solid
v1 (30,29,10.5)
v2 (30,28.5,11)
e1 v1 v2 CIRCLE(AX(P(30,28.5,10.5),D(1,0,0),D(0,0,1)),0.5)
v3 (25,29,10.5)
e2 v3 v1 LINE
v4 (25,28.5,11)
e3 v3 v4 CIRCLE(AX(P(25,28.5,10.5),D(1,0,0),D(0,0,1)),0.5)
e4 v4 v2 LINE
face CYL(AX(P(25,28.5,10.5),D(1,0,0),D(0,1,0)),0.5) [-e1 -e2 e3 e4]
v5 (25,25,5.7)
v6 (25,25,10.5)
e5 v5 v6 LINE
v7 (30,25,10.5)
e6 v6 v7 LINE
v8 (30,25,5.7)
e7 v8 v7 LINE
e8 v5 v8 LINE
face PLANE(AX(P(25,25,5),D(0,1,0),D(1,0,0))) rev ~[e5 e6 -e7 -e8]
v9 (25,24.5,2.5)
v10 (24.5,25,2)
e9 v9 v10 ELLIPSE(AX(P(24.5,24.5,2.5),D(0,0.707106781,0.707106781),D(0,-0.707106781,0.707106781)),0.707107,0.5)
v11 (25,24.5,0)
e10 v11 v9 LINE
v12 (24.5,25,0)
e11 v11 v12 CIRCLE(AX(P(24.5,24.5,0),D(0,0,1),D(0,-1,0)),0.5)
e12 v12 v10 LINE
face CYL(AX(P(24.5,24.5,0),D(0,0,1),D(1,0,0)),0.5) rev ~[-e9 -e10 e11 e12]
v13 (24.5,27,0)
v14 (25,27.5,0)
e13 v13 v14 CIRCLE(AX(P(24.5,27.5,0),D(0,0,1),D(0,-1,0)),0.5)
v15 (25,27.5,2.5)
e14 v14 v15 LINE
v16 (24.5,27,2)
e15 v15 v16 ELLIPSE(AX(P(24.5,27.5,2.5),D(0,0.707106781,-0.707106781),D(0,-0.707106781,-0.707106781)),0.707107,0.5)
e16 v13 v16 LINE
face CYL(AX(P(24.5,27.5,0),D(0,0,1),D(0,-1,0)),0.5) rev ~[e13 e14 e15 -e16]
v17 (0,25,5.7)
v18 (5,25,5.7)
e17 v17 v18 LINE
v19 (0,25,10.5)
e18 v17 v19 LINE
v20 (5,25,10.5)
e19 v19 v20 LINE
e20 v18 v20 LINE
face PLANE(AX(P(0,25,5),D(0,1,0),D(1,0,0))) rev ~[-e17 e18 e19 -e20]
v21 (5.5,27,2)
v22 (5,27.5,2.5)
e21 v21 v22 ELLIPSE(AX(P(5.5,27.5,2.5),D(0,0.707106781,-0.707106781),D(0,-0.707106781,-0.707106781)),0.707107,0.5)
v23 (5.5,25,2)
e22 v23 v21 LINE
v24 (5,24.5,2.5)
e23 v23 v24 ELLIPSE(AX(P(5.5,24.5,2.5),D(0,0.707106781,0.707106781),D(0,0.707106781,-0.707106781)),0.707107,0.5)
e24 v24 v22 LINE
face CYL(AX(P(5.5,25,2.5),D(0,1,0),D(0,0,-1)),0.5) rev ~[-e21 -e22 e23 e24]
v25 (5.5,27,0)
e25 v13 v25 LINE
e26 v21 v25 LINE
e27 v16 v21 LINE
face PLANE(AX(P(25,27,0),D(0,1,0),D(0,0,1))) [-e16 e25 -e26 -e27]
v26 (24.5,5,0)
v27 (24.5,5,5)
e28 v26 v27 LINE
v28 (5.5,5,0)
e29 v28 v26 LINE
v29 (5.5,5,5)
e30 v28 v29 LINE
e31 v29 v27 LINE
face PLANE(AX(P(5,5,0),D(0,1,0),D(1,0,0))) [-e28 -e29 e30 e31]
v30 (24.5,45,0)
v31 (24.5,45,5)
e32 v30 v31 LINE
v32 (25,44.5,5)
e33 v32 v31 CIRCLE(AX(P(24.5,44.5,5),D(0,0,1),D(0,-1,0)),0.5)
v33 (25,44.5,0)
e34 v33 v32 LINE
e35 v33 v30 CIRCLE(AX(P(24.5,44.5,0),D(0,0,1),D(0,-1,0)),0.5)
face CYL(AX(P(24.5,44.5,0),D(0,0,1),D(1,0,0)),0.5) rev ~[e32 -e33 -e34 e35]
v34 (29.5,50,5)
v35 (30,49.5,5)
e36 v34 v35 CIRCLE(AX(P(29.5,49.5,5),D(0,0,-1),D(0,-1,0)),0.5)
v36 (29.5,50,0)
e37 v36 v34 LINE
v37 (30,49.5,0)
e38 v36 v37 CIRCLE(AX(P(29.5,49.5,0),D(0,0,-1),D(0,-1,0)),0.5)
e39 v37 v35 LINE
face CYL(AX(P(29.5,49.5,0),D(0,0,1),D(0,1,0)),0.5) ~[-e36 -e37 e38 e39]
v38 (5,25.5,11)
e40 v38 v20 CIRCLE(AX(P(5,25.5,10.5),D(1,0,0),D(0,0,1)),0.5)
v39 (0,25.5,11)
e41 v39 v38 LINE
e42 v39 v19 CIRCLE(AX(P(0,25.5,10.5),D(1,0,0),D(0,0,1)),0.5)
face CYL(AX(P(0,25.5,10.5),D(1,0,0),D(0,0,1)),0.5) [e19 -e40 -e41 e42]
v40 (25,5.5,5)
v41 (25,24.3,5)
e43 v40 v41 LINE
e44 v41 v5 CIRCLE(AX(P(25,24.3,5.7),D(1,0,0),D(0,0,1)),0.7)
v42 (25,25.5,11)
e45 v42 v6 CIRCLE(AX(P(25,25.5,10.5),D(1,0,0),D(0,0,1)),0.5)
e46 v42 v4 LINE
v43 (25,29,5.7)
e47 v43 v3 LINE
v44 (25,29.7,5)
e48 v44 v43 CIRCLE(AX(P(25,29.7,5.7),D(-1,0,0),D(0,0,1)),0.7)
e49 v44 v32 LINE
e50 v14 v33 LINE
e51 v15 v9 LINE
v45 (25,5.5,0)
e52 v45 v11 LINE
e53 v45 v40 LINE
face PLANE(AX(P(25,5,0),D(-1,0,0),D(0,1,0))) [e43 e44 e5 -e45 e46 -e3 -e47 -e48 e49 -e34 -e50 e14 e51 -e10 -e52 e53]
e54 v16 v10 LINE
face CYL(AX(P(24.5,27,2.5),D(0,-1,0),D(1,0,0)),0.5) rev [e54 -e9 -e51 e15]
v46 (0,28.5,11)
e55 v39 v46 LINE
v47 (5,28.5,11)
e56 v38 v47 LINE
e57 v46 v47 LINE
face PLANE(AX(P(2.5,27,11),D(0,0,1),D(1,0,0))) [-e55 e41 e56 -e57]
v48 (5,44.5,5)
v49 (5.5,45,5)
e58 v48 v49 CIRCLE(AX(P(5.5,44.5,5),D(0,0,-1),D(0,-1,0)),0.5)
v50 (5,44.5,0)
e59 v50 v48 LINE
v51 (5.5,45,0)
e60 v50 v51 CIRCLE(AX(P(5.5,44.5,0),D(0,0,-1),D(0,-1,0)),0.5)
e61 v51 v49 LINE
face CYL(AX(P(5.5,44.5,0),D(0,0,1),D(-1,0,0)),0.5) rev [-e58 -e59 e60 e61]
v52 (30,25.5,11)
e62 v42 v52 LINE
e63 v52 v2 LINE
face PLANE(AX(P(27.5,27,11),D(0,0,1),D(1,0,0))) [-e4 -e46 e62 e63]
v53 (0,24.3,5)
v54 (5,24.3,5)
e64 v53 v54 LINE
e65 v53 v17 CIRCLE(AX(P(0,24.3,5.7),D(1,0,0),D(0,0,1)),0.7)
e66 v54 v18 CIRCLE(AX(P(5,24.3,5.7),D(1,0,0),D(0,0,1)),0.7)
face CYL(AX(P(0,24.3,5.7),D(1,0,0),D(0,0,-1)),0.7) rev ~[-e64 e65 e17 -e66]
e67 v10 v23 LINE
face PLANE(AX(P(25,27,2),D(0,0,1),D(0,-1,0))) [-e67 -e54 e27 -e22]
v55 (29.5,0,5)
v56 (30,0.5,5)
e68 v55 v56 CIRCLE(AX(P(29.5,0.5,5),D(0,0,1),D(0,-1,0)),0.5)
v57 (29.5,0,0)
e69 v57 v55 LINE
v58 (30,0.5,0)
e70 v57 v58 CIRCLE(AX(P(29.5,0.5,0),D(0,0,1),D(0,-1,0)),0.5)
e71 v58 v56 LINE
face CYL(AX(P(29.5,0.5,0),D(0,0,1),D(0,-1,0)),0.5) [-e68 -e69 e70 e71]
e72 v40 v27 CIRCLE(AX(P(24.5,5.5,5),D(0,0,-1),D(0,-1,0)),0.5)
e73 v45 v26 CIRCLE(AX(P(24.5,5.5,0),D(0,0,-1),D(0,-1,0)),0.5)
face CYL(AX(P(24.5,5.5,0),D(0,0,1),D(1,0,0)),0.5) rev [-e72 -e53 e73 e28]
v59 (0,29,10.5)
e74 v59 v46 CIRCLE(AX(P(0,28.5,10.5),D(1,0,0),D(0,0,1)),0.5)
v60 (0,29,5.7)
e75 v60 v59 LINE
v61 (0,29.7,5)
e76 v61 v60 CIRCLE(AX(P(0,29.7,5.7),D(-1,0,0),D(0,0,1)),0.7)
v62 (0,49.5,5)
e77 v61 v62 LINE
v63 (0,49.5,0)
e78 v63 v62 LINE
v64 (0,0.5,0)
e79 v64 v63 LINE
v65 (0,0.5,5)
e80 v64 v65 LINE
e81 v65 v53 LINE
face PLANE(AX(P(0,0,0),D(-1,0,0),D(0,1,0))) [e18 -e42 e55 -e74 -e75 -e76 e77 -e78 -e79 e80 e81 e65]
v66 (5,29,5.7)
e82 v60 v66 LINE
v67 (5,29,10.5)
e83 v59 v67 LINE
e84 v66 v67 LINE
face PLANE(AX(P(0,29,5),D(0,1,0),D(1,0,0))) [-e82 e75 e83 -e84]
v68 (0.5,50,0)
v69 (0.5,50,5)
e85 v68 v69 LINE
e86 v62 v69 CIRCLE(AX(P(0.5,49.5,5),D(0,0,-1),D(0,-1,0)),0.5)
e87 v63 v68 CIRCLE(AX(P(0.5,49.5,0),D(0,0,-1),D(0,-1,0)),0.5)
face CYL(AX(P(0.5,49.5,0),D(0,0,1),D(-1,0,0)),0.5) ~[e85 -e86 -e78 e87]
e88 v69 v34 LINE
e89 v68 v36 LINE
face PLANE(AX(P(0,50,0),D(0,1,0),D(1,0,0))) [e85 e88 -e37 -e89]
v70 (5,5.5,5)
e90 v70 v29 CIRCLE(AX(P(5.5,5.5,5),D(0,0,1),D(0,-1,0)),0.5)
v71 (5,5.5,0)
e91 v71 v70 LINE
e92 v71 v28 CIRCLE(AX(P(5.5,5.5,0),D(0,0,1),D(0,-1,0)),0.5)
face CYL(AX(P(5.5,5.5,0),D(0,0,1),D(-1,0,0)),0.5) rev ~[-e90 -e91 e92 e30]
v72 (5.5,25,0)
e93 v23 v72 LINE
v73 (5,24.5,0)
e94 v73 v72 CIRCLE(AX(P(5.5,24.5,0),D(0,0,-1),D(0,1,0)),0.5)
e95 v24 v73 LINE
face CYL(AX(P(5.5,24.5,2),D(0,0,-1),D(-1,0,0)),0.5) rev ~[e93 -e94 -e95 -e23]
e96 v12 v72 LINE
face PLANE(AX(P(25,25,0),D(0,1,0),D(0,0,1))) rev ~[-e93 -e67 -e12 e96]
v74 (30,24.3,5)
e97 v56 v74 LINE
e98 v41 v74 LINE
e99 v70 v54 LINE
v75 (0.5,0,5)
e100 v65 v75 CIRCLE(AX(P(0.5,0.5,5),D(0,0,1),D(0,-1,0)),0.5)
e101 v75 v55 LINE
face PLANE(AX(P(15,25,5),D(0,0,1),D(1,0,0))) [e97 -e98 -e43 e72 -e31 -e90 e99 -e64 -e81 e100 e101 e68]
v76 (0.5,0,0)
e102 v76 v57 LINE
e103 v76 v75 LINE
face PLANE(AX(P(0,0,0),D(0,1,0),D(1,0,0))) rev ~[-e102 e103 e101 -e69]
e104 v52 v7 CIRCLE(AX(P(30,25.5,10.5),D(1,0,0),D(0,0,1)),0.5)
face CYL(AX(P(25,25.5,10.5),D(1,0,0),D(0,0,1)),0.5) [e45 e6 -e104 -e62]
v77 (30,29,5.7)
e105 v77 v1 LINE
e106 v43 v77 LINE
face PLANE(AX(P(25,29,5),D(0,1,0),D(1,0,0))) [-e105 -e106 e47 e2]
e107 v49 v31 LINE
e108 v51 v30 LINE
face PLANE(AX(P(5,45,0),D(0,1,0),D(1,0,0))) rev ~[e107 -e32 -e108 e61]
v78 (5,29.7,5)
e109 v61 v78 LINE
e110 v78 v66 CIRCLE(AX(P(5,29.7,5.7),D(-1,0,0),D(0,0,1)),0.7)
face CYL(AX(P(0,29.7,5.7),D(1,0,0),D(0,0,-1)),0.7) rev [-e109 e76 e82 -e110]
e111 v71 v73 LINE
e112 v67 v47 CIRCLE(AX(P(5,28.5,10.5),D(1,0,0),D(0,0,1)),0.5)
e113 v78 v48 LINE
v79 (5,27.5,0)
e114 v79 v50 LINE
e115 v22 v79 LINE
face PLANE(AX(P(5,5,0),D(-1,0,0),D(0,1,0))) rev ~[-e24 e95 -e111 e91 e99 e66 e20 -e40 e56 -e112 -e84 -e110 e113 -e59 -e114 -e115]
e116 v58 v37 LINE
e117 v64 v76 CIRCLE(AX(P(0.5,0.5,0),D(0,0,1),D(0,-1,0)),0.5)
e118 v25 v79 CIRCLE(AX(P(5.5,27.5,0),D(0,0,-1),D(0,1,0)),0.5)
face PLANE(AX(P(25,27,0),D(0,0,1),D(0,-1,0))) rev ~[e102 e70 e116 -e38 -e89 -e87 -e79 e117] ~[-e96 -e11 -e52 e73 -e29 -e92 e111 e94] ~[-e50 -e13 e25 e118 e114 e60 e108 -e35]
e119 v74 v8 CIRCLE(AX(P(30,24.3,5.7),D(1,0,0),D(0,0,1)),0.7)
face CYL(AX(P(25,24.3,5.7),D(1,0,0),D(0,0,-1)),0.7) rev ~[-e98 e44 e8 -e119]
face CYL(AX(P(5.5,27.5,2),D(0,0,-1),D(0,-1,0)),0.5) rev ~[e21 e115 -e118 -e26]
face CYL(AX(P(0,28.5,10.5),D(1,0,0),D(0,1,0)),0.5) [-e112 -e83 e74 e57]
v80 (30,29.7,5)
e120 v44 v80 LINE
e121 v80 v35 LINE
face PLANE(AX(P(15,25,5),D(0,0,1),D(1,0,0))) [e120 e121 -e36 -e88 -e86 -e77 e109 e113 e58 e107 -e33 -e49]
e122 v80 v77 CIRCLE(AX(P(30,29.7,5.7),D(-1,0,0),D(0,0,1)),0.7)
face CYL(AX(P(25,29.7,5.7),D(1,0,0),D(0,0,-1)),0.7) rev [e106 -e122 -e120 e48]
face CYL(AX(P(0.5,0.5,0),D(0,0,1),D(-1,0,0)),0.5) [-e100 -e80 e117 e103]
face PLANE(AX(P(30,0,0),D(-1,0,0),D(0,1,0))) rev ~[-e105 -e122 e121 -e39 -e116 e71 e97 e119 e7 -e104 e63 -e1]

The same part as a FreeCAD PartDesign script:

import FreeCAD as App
import Part
import Sketcher
Q = App.Units.Quantity


def edges_at(feature, points):
    """Names of the edges that pass closest to the given points."""
    edges = feature.Shape.Edges
    near = lambda p: min(range(len(edges)), key=lambda i: edges[i].distToShape(Part.Vertex(*p))[0])
    return sorted({f"Edge{near(p) + 1}" for p in points})

doc = App.newDocument("Part")
params = doc.addObject("Spreadsheet::Sheet", "Params")
for row, (alias, value) in enumerate([
    ("sketch1_width", "30 mm"),
    ("sketch1_width2", "20 mm"),
    ("sketch1_height", "50 mm"),
    ("sketch1_height2", "40 mm"),
    ("pad1_length", "5 mm"),
    ("sketch2_width", "5 mm"),
    ("sketch2_height", "4 mm"),
    ("pad2_length", "6 mm"),
    ("sketch3_width", "2 mm"),
    ("pad3_length", "20.11 mm"),
    ("fillet_radius", "0.5 mm"),
    ("fillet2_radius", "0.7 mm"),
], start=1):
    params.set(f"A{row}", alias)
    params.set(f"B{row}", "=" + value)
    params.setAlias(f"B{row}", alias)

body = doc.addObject("PartDesign::Body", "Body")

sketch1 = body.newObject("Sketcher::SketchObject", "Sketch")
sketch1.AttachmentSupport = (doc.getObject("XY_Plane"), [""])
sketch1.MapMode = "FlatFace"
sketch1.addGeometry([
    Part.LineSegment(App.Vector(0, 50, 0), App.Vector(0, 0, 0)),
    Part.LineSegment(App.Vector(0, 0, 0), App.Vector(30, 0, 0)),
    Part.LineSegment(App.Vector(30, 0, 0), App.Vector(30, 50, 0)),
    Part.LineSegment(App.Vector(30, 50, 0), App.Vector(0, 50, 0)),
    Part.LineSegment(App.Vector(25, 5, 0), App.Vector(5, 5, 0)),
    Part.LineSegment(App.Vector(5, 5, 0), App.Vector(5, 45, 0)),
    Part.LineSegment(App.Vector(5, 45, 0), App.Vector(25, 45, 0)),
    Part.LineSegment(App.Vector(25, 45, 0), App.Vector(25, 5, 0)),
], False)
sketch1.addConstraint([
    Sketcher.Constraint("Coincident", 0, 2, 1, 1),
    Sketcher.Constraint("Coincident", 1, 2, 2, 1),
    Sketcher.Constraint("Coincident", 2, 2, 3, 1),
    Sketcher.Constraint("Coincident", 3, 2, 0, 1),
    Sketcher.Constraint("Coincident", 4, 2, 5, 1),
    Sketcher.Constraint("Coincident", 5, 2, 6, 1),
    Sketcher.Constraint("Coincident", 6, 2, 7, 1),
    Sketcher.Constraint("Coincident", 7, 2, 4, 1),
    Sketcher.Constraint("Vertical", 0),
    Sketcher.Constraint("Horizontal", 1),
    Sketcher.Constraint("Vertical", 2),
    Sketcher.Constraint("Horizontal", 3),
    Sketcher.Constraint("Horizontal", 4),
    Sketcher.Constraint("Vertical", 5),
    Sketcher.Constraint("Horizontal", 6),
    Sketcher.Constraint("Vertical", 7),
    Sketcher.Constraint("Coincident", 0, 2, -1, 1),
    Sketcher.Constraint("DistanceX", 1, 1, 1, 2, Q("30 mm")),
    Sketcher.Constraint("DistanceX", 4, 2, 4, 1, Q("20 mm")),
    Sketcher.Constraint("DistanceY", 0, 2, 0, 1, Q("50 mm")),
    Sketcher.Constraint("DistanceY", 5, 1, 5, 2, Q("40 mm")),
    Sketcher.Constraint("DistanceX", -1, 1, 4, 2, Q("5 mm")),
    Sketcher.Constraint("DistanceY", -1, 1, 4, 2, Q("5 mm")),
])
sketch1.setExpression("Constraints[17]", "Params.sketch1_width")
sketch1.setExpression("Constraints[18]", "Params.sketch1_width2")
sketch1.setExpression("Constraints[19]", "Params.sketch1_height")
sketch1.setExpression("Constraints[20]", "Params.sketch1_height2")
pad1 = body.newObject("PartDesign::Pad", "Pad")
pad1.Profile = sketch1
pad1.setExpression("Length", "Params.pad1_length")

sketch2 = body.newObject("Sketcher::SketchObject", "Sketch001")
sketch2.AttachmentSupport = (doc.getObject("XY_Plane"), [""])
sketch2.MapMode = "FlatFace"
sketch2.AttachmentOffset = App.Placement(App.Vector(0, 0, 5), App.Rotation())
sketch2.addGeometry([
    Part.LineSegment(App.Vector(0, 29, 0), App.Vector(0, 25, 0)),
    Part.LineSegment(App.Vector(0, 25, 0), App.Vector(5, 25, 0)),
    Part.LineSegment(App.Vector(5, 25, 0), App.Vector(5, 29, 0)),
    Part.LineSegment(App.Vector(5, 29, 0), App.Vector(0, 29, 0)),
    Part.LineSegment(App.Vector(25, 29, 0), App.Vector(25, 25, 0)),
    Part.LineSegment(App.Vector(25, 25, 0), App.Vector(30, 25, 0)),
    Part.LineSegment(App.Vector(30, 25, 0), App.Vector(30, 29, 0)),
    Part.LineSegment(App.Vector(30, 29, 0), App.Vector(25, 29, 0)),
], False)
sketch2.addConstraint([
    Sketcher.Constraint("Coincident", 0, 2, 1, 1),
    Sketcher.Constraint("Coincident", 1, 2, 2, 1),
    Sketcher.Constraint("Coincident", 2, 2, 3, 1),
    Sketcher.Constraint("Coincident", 3, 2, 0, 1),
    Sketcher.Constraint("Coincident", 4, 2, 5, 1),
    Sketcher.Constraint("Coincident", 5, 2, 6, 1),
    Sketcher.Constraint("Coincident", 6, 2, 7, 1),
    Sketcher.Constraint("Coincident", 7, 2, 4, 1),
    Sketcher.Constraint("Vertical", 0),
    Sketcher.Constraint("Horizontal", 1),
    Sketcher.Constraint("Vertical", 2),
    Sketcher.Constraint("Horizontal", 3),
    Sketcher.Constraint("Vertical", 4),
    Sketcher.Constraint("Horizontal", 5),
    Sketcher.Constraint("Vertical", 6),
    Sketcher.Constraint("Horizontal", 7),
    Sketcher.Constraint("PointOnObject", 0, 2, -2),
    Sketcher.Constraint("Horizontal", 1, 2, 4, 2),
    Sketcher.Constraint("Horizontal", 3, 2, 6, 2),
    Sketcher.Constraint("Equal", 3, 5),
    Sketcher.Constraint("DistanceX", 1, 1, 1, 2, Q("5 mm")),
    Sketcher.Constraint("DistanceY", 0, 2, 0, 1, Q("4 mm")),
    Sketcher.Constraint("DistanceY", -1, 1, 0, 2, Q("25 mm")),
    Sketcher.Constraint("DistanceX", -1, 1, 4, 2, Q("25 mm")),
])
sketch2.setExpression("Constraints[20]", "Params.sketch2_width")
sketch2.setExpression("Constraints[21]", "Params.sketch2_height")
pad2 = body.newObject("PartDesign::Pad", "Pad001")
pad2.Profile = sketch2
pad2.setExpression("Length", "Params.pad2_length")

sketch3 = body.newObject("Sketcher::SketchObject", "Sketch002")
sketch3.AttachmentSupport = (doc.getObject("YZ_Plane"), [""])
sketch3.MapMode = "FlatFace"
sketch3.AttachmentOffset = App.Placement(App.Vector(0, 0, 25), App.Rotation())
sketch3.addGeometry([
    Part.LineSegment(App.Vector(27, 2, 0), App.Vector(27, 0, 0)),
    Part.LineSegment(App.Vector(27, 0, 0), App.Vector(25, 0, 0)),
    Part.LineSegment(App.Vector(25, 0, 0), App.Vector(25, 2, 0)),
    Part.LineSegment(App.Vector(25, 2, 0), App.Vector(27, 2, 0)),
], False)
sketch3.addConstraint([
    Sketcher.Constraint("Coincident", 0, 2, 1, 1),
    Sketcher.Constraint("Coincident", 1, 2, 2, 1),
    Sketcher.Constraint("Coincident", 2, 2, 3, 1),
    Sketcher.Constraint("Coincident", 3, 2, 0, 1),
    Sketcher.Constraint("Vertical", 0),
    Sketcher.Constraint("Horizontal", 1),
    Sketcher.Constraint("Vertical", 2),
    Sketcher.Constraint("Horizontal", 3),
    Sketcher.Constraint("PointOnObject", 0, 2, -1),
    Sketcher.Constraint("Equal", 3, 0),
    Sketcher.Constraint("DistanceX", 1, 2, 1, 1, Q("2 mm")),
    Sketcher.Constraint("DistanceX", -1, 1, 0, 2, Q("27 mm")),
])
sketch3.setExpression("Constraints[10]", "Params.sketch3_width")
pad3 = body.newObject("PartDesign::Pad", "Pad002")
pad3.Profile = sketch3
pad3.setExpression("Length", "Params.pad3_length")
pad3.Reversed = True
doc.recompute()

fillet = body.newObject("PartDesign::Fillet", "Fillet")
fillet.Base = (pad3, edges_at(pad3, [
    (27.5, 29, 11),
    (27.5, 25, 11),
    (2.5, 25, 11),
    (2.5, 29, 11),
    (30, 0, 2.5),
    (25, 5, 2.5),
    (30, 50, 2.5),
    (0, 50, 2.5),
    (5, 45, 2.5),
    (5, 5, 2.5),
    (5, 27, 1),
    (5, 26, 2),
    (5, 25, 1),
    (25, 25, 1),
    (25, 26, 2),
    (25, 45, 2.5),
    (25, 27, 1),
    (0, 0, 2.5),
]))
fillet.setExpression("Radius", "Params.fillet_radius")
doc.recompute()

fillet2 = body.newObject("PartDesign::Fillet", "Fillet001")
fillet2.Base = (fillet, edges_at(fillet, [
    (2.5, 25, 5),
    (27.5, 25, 5),
    (27.5, 29, 5),
    (2.5, 29, 5),
]))
fillet2.setExpression("Radius", "Params.fillet2_radius")

doc.recompute()
